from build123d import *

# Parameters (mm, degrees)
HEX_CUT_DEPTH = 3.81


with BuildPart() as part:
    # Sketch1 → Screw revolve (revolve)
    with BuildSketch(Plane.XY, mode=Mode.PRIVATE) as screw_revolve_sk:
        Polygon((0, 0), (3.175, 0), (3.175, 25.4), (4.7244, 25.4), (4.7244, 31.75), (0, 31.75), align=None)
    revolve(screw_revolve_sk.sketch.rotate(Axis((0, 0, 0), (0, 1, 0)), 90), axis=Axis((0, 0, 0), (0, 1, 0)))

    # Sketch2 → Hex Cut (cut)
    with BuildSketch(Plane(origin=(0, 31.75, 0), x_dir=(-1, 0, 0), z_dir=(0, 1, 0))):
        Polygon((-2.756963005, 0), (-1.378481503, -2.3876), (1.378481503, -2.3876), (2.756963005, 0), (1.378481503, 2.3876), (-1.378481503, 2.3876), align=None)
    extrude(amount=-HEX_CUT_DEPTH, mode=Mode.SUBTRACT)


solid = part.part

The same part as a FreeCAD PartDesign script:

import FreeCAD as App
import Part
import Sketcher
from FreeCAD import Vector
Q = App.Units.Quantity

doc = App.newDocument("Part")
body = doc.addObject("PartDesign::Body", "Body")

# Sketch on XY plane
sketch1 = doc.addObject("Sketcher::SketchObject", "Sketch")
body.addObject(sketch1)
sketch1.AttachmentSupport = (doc.XY_Plane, [""])
sketch1.MapMode = "FlatFace"
sketch1.addGeometry([
    Part.LineSegment(Vector(0, 0, 0), Vector(3.2, 0, 0)),  # 0
    Part.LineSegment(Vector(3.2, 0, 0), Vector(3.2, 25.4, 0)),  # 1
    Part.LineSegment(Vector(3.2, 25.4, 0), Vector(4.7, 25.4, 0)),  # 2
    Part.LineSegment(Vector(4.7, 25.4, 0), Vector(4.7, 31.8, 0)),  # 3
    Part.LineSegment(Vector(4.7, 31.8, 0), Vector(0, 31.8, 0)),  # 4
    Part.LineSegment(Vector(0, 31.8, 0), Vector(0, 0, 0)),  # 5
], False)
sketch1.addConstraint([
    Sketcher.Constraint("Coincident", 0, 2, 1, 1),
    Sketcher.Constraint("Coincident", 1, 2, 2, 1),
    Sketcher.Constraint("Coincident", 2, 2, 3, 1),
    Sketcher.Constraint("Coincident", 3, 2, 4, 1),
    Sketcher.Constraint("Coincident", 4, 2, 5, 1),
    Sketcher.Constraint("Coincident", 5, 2, 0, 1),
    Sketcher.Constraint("Horizontal", 0),
    Sketcher.Constraint("Vertical", 1),
    Sketcher.Constraint("Horizontal", 2),
    Sketcher.Constraint("Vertical", 3),
    Sketcher.Constraint("Horizontal", 4),
    Sketcher.Constraint("Vertical", 5),
    Sketcher.Constraint("Coincident", 5, 2, -1, 1),
    Sketcher.Constraint("DistanceY", 1, 1, 1, 2, Q("1 in")),
    Sketcher.Constraint("DistanceY", 3, 1, 3, 2, Q("0.25 in")),
    Sketcher.Constraint("DistanceX", 0, 1, 0, 2, Q("0.125 in")),
    Sketcher.Constraint("DistanceX", 2, 1, 2, 2, Q("0.061 in")),
])
revolution = doc.addObject("PartDesign::Revolution", "Revolution")
body.addObject(revolution)
revolution.Profile = sketch1
revolution.ReferenceAxis = (sketch1, ["V_Axis"])
revolution.Angle = 360

# Sketch on XZ plane
sketch2 = doc.addObject("Sketcher::SketchObject", "Sketch001")
body.addObject(sketch2)
sketch2.AttachmentSupport = (doc.XZ_Plane, [""])
sketch2.MapMode = "FlatFace"
sketch2.AttachmentOffset = App.Placement(Vector(0, 0, -1.25 * 25.4), App.Rotation())
sketch2.addGeometry([
    Part.LineSegment(Vector(2.8, 0, 0), Vector(1.4, -2.4, 0)),  # 0
    Part.LineSegment(Vector(1.4, -2.4, 0), Vector(-1.4, -2.4, 0)),  # 1
    Part.LineSegment(Vector(-1.4, -2.4, 0), Vector(-2.8, 0, 0)),  # 2
    Part.LineSegment(Vector(-2.8, 0, 0), Vector(-1.4, 2.4, 0)),  # 3
    Part.LineSegment(Vector(-1.4, 2.4, 0), Vector(1.4, 2.4, 0)),  # 4
    Part.LineSegment(Vector(1.4, 2.4, 0), Vector(2.8, 0, 0)),  # 5
], False)
sketch2.addConstraint([
    Sketcher.Constraint("Coincident", 0, 2, 1, 1),
    Sketcher.Constraint("Coincident", 1, 2, 2, 1),
    Sketcher.Constraint("Coincident", 2, 2, 3, 1),
    Sketcher.Constraint("Coincident", 3, 2, 4, 1),
    Sketcher.Constraint("Coincident", 4, 2, 5, 1),
    Sketcher.Constraint("Coincident", 5, 2, 0, 1),
    Sketcher.Constraint("Horizontal", 1),
    Sketcher.Constraint("Horizontal", 4),
    Sketcher.Constraint("Symmetric", 0, 2, 3, 2, -1, 1),
    Sketcher.Constraint("Symmetric", 2, 2, 5, 2, -1, 1),
    Sketcher.Constraint("PointOnObject", 2, 2, -1),
    Sketcher.Constraint("Parallel", 2, 5),
    Sketcher.Constraint("Vertical", 1, 2, 3, 2),
    Sketcher.Constraint("Angle", 0, Q("-120 deg")),
    Sketcher.Constraint("DistanceY", 0, 2, -1, 1, Q("0.094 in")),
    Sketcher.Constraint("DistanceX", 1, 2, 1, 1, 2.756963),
])
pocket1 = doc.addObject("PartDesign::Pocket", "Pocket")
body.addObject(pocket1)
pocket1.Profile = sketch2
pocket1.Length = Q("0.15 in")
pocket1.Reversed = True

doc.recompute()
